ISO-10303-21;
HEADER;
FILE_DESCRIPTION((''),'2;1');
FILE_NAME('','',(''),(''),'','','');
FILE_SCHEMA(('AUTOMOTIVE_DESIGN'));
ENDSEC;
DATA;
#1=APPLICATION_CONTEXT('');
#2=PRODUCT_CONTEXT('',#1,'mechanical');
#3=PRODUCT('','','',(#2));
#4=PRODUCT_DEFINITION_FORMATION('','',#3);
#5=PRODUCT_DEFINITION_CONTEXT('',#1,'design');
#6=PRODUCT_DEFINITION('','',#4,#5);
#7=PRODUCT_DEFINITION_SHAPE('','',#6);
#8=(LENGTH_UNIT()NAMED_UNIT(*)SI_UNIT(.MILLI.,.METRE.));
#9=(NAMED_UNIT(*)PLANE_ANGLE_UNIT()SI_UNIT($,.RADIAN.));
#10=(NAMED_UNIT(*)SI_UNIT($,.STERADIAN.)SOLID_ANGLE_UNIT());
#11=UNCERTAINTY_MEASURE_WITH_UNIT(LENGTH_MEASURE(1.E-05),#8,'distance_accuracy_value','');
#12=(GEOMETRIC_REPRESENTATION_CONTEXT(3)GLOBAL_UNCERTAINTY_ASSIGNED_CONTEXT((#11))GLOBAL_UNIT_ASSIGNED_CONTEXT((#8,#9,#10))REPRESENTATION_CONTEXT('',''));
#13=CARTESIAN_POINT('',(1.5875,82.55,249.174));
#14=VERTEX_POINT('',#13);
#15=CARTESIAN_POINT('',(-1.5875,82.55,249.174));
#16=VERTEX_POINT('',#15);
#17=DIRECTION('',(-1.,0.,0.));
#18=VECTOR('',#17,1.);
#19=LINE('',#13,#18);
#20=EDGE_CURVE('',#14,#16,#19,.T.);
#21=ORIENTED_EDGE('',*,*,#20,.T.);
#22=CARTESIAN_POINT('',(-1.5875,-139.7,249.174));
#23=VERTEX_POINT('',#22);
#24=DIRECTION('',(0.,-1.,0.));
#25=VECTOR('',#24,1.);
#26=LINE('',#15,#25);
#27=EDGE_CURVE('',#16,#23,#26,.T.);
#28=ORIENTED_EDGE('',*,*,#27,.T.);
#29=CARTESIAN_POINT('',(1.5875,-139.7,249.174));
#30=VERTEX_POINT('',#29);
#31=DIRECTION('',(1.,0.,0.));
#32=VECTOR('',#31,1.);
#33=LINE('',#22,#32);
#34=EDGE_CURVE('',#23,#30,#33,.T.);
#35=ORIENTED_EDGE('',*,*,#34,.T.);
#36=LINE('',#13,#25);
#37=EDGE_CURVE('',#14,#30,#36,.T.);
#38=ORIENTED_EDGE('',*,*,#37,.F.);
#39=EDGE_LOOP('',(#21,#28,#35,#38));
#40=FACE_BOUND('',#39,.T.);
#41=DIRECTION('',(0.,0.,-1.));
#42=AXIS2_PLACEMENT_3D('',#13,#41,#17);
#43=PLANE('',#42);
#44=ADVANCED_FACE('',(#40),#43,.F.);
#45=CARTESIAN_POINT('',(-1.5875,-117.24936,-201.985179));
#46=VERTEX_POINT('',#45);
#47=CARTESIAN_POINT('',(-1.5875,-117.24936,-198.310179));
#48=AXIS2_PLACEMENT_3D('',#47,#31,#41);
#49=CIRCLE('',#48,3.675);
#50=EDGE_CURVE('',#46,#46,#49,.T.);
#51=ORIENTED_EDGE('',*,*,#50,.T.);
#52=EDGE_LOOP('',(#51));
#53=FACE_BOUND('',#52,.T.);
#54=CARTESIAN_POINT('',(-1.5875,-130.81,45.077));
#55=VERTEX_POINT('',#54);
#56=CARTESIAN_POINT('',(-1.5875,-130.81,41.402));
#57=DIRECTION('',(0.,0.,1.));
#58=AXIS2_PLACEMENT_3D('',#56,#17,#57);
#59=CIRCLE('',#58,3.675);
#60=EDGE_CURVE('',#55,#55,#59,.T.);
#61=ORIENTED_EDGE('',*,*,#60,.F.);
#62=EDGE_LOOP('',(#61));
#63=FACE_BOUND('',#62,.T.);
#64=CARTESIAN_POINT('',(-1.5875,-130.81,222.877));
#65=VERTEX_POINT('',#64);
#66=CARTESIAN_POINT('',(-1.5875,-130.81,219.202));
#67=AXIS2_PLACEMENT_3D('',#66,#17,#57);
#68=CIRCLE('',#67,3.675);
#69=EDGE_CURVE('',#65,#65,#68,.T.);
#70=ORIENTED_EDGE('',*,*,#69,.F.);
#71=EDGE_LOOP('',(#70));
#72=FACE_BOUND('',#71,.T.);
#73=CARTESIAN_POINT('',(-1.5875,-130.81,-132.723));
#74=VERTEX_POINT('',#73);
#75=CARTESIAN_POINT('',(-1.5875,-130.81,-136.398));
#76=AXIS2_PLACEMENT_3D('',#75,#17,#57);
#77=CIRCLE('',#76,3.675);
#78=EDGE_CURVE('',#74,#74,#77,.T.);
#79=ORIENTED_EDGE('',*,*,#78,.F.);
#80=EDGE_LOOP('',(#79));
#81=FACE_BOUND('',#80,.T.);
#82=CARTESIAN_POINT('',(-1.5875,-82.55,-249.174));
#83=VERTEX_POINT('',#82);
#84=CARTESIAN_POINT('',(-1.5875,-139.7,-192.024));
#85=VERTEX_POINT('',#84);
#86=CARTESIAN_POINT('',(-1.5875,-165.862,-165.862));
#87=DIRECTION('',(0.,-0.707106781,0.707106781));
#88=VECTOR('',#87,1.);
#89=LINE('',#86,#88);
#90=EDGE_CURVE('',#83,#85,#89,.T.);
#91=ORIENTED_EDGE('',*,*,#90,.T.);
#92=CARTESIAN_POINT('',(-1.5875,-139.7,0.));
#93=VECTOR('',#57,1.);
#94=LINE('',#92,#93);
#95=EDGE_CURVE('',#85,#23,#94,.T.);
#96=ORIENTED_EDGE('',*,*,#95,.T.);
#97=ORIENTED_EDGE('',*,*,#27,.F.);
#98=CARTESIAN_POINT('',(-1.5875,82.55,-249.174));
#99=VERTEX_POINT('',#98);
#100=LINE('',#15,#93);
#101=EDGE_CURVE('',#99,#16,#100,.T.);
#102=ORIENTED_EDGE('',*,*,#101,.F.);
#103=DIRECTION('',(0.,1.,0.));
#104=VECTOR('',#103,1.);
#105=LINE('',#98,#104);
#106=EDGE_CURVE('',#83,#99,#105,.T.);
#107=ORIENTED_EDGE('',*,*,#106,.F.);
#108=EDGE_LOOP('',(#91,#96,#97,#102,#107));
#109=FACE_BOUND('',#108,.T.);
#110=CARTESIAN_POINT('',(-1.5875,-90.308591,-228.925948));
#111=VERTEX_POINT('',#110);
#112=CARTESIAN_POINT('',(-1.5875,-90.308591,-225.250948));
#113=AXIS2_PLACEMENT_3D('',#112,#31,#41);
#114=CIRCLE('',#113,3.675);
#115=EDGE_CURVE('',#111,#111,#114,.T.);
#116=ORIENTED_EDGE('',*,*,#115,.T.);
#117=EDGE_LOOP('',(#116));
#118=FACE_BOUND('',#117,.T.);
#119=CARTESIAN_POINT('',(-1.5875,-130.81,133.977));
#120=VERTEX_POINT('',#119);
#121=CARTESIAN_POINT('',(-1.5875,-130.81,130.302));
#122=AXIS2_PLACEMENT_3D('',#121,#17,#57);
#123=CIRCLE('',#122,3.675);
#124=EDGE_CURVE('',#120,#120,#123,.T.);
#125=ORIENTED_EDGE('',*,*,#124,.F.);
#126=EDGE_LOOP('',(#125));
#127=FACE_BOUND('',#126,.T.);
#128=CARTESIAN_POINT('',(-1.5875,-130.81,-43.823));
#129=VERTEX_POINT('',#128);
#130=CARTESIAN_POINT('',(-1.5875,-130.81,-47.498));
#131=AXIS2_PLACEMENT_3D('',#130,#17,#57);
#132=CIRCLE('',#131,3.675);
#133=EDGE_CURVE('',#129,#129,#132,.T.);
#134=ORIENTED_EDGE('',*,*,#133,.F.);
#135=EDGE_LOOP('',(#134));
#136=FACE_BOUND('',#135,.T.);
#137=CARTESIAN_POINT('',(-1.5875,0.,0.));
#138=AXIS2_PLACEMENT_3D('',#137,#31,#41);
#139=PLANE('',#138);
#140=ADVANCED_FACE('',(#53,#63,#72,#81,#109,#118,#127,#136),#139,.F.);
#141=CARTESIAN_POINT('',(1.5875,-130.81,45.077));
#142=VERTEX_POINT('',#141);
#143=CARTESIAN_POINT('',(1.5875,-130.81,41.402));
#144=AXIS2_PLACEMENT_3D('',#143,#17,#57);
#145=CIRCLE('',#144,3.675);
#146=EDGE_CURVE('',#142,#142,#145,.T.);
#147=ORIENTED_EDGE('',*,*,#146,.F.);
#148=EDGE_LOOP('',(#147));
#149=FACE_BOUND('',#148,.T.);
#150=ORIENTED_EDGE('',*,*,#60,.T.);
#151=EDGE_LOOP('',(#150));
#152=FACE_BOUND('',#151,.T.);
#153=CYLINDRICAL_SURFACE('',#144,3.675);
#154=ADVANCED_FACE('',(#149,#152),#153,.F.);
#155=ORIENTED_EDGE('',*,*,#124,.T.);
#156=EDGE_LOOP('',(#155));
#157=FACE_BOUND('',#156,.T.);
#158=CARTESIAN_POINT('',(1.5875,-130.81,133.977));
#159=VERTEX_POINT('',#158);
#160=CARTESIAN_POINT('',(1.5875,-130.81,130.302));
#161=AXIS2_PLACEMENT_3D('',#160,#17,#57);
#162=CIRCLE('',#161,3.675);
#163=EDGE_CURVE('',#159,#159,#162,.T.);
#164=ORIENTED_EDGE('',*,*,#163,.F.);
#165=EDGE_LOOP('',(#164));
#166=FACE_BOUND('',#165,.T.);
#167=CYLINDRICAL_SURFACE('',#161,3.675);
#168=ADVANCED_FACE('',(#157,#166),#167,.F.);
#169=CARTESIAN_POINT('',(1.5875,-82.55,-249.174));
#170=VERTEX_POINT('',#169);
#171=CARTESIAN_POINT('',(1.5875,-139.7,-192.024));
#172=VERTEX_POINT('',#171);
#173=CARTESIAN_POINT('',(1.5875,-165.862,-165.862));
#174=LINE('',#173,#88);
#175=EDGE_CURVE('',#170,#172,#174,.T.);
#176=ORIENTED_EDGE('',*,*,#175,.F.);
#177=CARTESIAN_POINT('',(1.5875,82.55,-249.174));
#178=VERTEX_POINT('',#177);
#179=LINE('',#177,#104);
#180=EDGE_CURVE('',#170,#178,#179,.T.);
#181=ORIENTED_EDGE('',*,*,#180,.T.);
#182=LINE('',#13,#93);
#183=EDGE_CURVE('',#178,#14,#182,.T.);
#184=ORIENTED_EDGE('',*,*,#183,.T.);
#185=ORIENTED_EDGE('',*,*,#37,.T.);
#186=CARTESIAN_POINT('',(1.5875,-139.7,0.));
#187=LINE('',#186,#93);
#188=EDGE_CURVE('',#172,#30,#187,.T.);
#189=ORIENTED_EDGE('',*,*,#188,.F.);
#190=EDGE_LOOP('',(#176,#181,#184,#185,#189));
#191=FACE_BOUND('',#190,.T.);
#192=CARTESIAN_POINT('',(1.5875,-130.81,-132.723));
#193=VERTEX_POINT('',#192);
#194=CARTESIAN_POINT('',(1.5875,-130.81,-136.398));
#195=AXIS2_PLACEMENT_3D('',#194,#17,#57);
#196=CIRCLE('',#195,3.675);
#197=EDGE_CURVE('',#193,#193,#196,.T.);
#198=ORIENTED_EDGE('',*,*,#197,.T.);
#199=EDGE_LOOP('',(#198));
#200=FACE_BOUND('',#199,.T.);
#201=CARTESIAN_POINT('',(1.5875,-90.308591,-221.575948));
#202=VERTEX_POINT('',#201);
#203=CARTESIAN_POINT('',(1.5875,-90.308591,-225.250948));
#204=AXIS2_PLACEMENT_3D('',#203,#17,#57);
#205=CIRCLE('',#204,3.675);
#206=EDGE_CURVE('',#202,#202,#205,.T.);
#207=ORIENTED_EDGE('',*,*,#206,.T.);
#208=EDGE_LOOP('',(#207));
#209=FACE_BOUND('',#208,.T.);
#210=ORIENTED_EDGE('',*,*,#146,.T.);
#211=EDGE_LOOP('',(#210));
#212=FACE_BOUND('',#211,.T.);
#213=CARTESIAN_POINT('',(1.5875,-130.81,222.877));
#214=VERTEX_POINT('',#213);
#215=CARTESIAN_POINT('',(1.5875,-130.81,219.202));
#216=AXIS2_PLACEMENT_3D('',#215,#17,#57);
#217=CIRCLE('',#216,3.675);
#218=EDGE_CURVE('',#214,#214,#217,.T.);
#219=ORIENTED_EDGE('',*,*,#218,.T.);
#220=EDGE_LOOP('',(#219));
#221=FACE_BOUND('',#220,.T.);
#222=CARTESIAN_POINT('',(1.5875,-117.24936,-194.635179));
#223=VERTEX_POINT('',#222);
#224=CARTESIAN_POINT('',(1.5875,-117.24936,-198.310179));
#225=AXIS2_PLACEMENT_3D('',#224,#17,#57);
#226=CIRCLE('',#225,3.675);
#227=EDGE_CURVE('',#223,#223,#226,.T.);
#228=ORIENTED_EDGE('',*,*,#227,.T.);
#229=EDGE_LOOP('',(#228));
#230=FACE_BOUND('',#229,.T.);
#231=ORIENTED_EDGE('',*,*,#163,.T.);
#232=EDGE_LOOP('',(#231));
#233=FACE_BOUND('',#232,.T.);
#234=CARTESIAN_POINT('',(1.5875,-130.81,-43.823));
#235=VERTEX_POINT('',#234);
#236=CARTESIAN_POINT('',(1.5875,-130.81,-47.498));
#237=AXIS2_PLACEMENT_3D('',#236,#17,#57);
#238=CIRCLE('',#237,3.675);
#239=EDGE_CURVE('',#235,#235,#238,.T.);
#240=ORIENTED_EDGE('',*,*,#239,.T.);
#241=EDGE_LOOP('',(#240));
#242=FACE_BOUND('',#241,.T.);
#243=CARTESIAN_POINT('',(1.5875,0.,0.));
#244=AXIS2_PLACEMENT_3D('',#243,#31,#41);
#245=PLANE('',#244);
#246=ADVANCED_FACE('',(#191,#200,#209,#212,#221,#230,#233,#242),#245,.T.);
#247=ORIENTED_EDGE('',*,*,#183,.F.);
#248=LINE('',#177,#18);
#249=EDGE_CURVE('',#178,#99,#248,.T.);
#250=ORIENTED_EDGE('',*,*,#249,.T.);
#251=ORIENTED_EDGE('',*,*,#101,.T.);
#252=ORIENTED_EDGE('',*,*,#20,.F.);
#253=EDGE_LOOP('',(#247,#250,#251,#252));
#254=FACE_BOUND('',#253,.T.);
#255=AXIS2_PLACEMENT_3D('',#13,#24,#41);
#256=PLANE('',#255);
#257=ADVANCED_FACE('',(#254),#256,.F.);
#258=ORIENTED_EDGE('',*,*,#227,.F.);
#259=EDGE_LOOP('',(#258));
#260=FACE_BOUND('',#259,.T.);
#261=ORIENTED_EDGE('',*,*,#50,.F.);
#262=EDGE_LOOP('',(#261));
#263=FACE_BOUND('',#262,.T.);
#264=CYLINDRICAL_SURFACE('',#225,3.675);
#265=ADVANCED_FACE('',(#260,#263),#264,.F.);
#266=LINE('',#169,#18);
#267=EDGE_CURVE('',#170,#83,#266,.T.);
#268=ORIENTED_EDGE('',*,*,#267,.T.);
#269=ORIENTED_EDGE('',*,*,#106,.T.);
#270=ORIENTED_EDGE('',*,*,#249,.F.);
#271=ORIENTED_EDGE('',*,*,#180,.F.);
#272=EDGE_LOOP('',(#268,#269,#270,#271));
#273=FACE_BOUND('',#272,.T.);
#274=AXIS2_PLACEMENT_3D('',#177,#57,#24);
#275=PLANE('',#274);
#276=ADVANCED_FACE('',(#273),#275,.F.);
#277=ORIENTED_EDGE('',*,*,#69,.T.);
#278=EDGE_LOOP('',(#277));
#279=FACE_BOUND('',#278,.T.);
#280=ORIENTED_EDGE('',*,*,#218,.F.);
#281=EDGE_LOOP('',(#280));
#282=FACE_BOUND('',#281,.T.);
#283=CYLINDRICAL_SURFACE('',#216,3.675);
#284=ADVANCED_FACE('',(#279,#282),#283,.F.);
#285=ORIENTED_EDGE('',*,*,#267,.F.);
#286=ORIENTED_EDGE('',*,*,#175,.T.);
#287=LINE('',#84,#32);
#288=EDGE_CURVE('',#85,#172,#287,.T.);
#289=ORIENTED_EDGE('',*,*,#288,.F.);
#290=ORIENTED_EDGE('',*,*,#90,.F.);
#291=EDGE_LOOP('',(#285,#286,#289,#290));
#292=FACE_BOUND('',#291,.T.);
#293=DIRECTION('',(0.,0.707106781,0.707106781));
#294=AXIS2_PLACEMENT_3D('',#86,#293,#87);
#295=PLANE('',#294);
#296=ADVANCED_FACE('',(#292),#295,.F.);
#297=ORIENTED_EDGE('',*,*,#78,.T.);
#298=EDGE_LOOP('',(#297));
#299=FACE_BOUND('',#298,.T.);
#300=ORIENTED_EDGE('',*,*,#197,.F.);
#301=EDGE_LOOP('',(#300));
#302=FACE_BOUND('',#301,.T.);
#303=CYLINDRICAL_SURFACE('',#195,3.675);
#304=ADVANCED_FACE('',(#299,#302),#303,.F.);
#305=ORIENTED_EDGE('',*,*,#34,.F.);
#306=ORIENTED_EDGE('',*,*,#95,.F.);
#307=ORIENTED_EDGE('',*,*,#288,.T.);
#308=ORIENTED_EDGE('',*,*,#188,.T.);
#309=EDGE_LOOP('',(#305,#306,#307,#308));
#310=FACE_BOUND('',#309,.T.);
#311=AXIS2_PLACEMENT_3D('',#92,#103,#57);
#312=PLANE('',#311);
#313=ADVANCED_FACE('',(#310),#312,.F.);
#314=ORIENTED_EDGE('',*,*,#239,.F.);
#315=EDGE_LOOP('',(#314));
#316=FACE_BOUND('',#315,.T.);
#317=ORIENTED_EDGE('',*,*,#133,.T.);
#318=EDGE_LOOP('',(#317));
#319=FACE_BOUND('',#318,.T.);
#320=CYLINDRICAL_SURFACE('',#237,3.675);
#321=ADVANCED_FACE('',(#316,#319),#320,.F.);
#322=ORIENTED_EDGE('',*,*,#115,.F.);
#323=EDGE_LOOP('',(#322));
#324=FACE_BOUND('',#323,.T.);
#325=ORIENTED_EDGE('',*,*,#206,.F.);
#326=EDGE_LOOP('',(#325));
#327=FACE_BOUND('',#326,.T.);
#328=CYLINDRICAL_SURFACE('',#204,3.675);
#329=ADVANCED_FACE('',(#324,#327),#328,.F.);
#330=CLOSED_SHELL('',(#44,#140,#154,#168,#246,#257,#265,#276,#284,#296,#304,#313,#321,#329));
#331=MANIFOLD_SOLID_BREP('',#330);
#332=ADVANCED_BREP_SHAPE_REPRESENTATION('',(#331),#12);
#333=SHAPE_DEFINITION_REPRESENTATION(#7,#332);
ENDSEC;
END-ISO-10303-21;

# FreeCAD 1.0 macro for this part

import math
import FreeCAD as App
import Part
import Sketcher
Q = App.Units.Quantity

doc = App.newDocument("Part")
params = doc.addObject("Spreadsheet::Sheet", "Params")
for row, (alias, value) in enumerate([
    ("sketch1_width", "6.5 in"),
    ("sketch1_height", "19.62 in"),
    ("pad1_length", "0.125 in"),
    ("sketch2_width", "2.25 in"),
    ("sketch2_height", "19.62 in"),
    ("pad2_length", "0.125 in"),
    ("linearpattern_pitch", "3.5 in"),
    ("pocket2_length", "573.362767 mm"),
    ("linearpattern2_pitch", "1.5 in"),
], start=1):
    params.set(f"A{row}", alias)
    params.set(f"B{row}", "=" + value)
    params.setAlias(f"B{row}", alias)

body = doc.addObject("PartDesign::Body", "Body")

sketch1 = body.newObject("Sketcher::SketchObject", "Sketch")
sketch1.AttachmentSupport = (doc.getObject("YZ_Plane"), [""])
sketch1.MapMode = "FlatFace"
sketch1.addGeometry(Part.LineSegment(App.Vector(83, 249, 0), App.Vector(-83, 249, 0)), False)
sketch1.addGeometry(Part.LineSegment(App.Vector(-83, 249, 0), App.Vector(-83, -249, 0)), False)
sketch1.addGeometry(Part.LineSegment(App.Vector(-83, -249, 0), App.Vector(83, -249, 0)), False)
sketch1.addGeometry(Part.LineSegment(App.Vector(83, -249, 0), App.Vector(83, 249, 0)), False)
sketch1.addConstraint(Sketcher.Constraint("Coincident", 0, 2, 1, 1))
sketch1.addConstraint(Sketcher.Constraint("Coincident", 1, 2, 2, 1))
sketch1.addConstraint(Sketcher.Constraint("Coincident", 2, 2, 3, 1))
sketch1.addConstraint(Sketcher.Constraint("Coincident", 3, 2, 0, 1))
sketch1.addConstraint(Sketcher.Constraint("Horizontal", 0))
sketch1.addConstraint(Sketcher.Constraint("Vertical", 1))
sketch1.addConstraint(Sketcher.Constraint("Horizontal", 2))
sketch1.addConstraint(Sketcher.Constraint("Vertical", 3))
sketch1.addConstraint(Sketcher.Constraint("Symmetric", 0, 2, 2, 2, -1, 1))
sketch1.addConstraint(Sketcher.Constraint("DistanceX", 0, 2, 0, 1, Q("6.5 in")))
sketch1.addConstraint(Sketcher.Constraint("DistanceY", 1, 2, 1, 1, Q("19.62 in")))
sketch1.setExpression("Constraints[9]", "Params.sketch1_width")
sketch1.setExpression("Constraints[10]", "Params.sketch1_height")
pad1 = body.newObject("PartDesign::Pad", "Pad")
pad1.Profile = sketch1
pad1.setExpression("Length", "Params.pad1_length")
pad1.Midplane = True

sketch2 = body.newObject("Sketcher::SketchObject", "Sketch001")
sketch2.AttachmentSupport = (doc.getObject("YZ_Plane"), [""])
sketch2.MapMode = "FlatFace"
sketch2.AttachmentOffset = App.Placement(App.Vector(0, 0, 0.0625 * 25.4), App.Rotation())
sketch2.addGeometry(Part.LineSegment(App.Vector(-140, -192, 0), App.Vector(-83, -249, 0)), False)
sketch2.addGeometry(Part.LineSegment(App.Vector(-83, -249, 0), App.Vector(-83, 249, 0)), False)
sketch2.addGeometry(Part.LineSegment(App.Vector(-83, 249, 0), App.Vector(-140, 249, 0)), False)
sketch2.addGeometry(Part.LineSegment(App.Vector(-140, 249, 0), App.Vector(-140, -192, 0)), False)
sketch2.addConstraint(Sketcher.Constraint("Coincident", 0, 2, 1, 1))
sketch2.addConstraint(Sketcher.Constraint("Coincident", 1, 2, 2, 1))
sketch2.addConstraint(Sketcher.Constraint("Coincident", 2, 2, 3, 1))
sketch2.addConstraint(Sketcher.Constraint("Coincident", 3, 2, 0, 1))
sketch2.addConstraint(Sketcher.Constraint("Vertical", 1))
sketch2.addConstraint(Sketcher.Constraint("Horizontal", 2))
sketch2.addConstraint(Sketcher.Constraint("Vertical", 3))
sketch2.addConstraint(Sketcher.Constraint("Angle", 0, Q("-45 deg")))
sketch2.addConstraint(Sketcher.Constraint("DistanceX", 2, 2, 2, 1, Q("2.25 in")))
sketch2.addConstraint(Sketcher.Constraint("DistanceY", 1, 1, 1, 2, Q("19.62 in")))
sketch2.addConstraint(Sketcher.Constraint("DistanceX", 2, 2, -1, 1, Q("5.5 in")))
sketch2.addConstraint(Sketcher.Constraint("DistanceY", 0, 2, -1, 1, Q("9.81 in")))
sketch2.setExpression("Constraints[8]", "Params.sketch2_width")
sketch2.setExpression("Constraints[9]", "Params.sketch2_height")
pad2 = body.newObject("PartDesign::Pad", "Pad001")
pad2.Profile = sketch2
pad2.setExpression("Length", "Params.pad2_length")
pad2.Reversed = True

sketch3 = body.newObject("Sketcher::SketchObject", "Sketch002")
sketch3.AttachmentSupport = (doc.getObject("YZ_Plane"), [""])
sketch3.MapMode = "FlatFace"
sketch3.AttachmentOffset = App.Placement(App.Vector(0, 0, -0.0625 * 25.4), App.Rotation())
sketch3.addGeometry(Part.ArcOfCircle(Part.Circle(App.Vector(-130.8, 219.2, 0), App.Vector(0, 0, 1), 3.7), math.radians(180), math.radians(450)), False)
sketch3.addGeometry(Part.ArcOfCircle(Part.Circle(App.Vector(-130.8, 219.2, 0), App.Vector(0, 0, 1), 3.7), math.radians(90), math.radians(180)), False)
sketch3.addConstraint(Sketcher.Constraint("Tangent", 0, 1, 1, 2))
sketch3.addConstraint(Sketcher.Constraint("Coincident", 1, 1, 0, 2))
sketch3.addConstraint(Sketcher.Constraint("Horizontal", 1, 3, 0, 1))
sketch3.addConstraint(Sketcher.Constraint("Vertical", 0, 3, 1, 1))
sketch3.addConstraint(Sketcher.Constraint("DistanceX", 0, 3, -1, 1, Q("5.15 in")))
sketch3.addConstraint(Sketcher.Constraint("DistanceY", -1, 1, 0, 3, Q("8.63 in")))
sketch3.addConstraint(Sketcher.Constraint("Radius", 0, Q("3.675 mm")))
pocket1 = body.newObject("PartDesign::Pocket", "Pocket")
pocket1.Profile = sketch3
pocket1.Type = "ThroughAll"
pocket1.Reversed = True
doc.recompute()

linearpattern = body.newObject("PartDesign::LinearPattern", "LinearPattern")
linearpattern.Originals = [pocket1]
linearpattern.Direction = (doc.getObject("Z_Axis"), [""])
linearpattern.Mode = "offset"
linearpattern.setExpression("Offset", "Params.linearpattern_pitch")
linearpattern.Occurrences = 5
linearpattern.Reversed = True
body.Tip = linearpattern

sketch4 = body.newObject("Sketcher::SketchObject", "Sketch003")
sketch4.AttachmentSupport = (doc.getObject("YZ_Plane"), [""])
sketch4.MapMode = "FlatFace"
sketch4.AttachmentOffset = App.Placement(App.Vector(0, 0, -0.0625 * 25.4), App.Rotation())
sketch4.addGeometry(Part.ArcOfCircle(Part.Circle(App.Vector(-117.2, -198.3, 0), App.Vector(0, 0, 1), 3.7), math.radians(-135), math.radians(90)), False)
sketch4.addGeometry(Part.ArcOfCircle(Part.Circle(App.Vector(-117.2, -198.3, 0), App.Vector(0, 0, 1), 3.7), math.radians(135), math.radians(225)), False)
sketch4.addGeometry(Part.ArcOfCircle(Part.Circle(App.Vector(-117.2, -198.3, 0), App.Vector(0, 0, 1), 3.7), math.radians(90), math.radians(135)), False)
sketch4.addConstraint(Sketcher.Constraint("Tangent", 0, 1, 1, 2))
sketch4.addConstraint(Sketcher.Constraint("Tangent", 1, 1, 2, 2))
sketch4.addConstraint(Sketcher.Constraint("Tangent", 2, 1, 0, 2))
sketch4.addConstraint(Sketcher.Constraint("Vertical", 0, 1, 1, 1))
sketch4.addConstraint(Sketcher.Constraint("Vertical", 1, 3, 2, 1))
sketch4.addConstraint(Sketcher.Constraint("Radius", 0, Q("3.675 mm")))
sketch4.addConstraint(Sketcher.Constraint("DistanceX", 0, 3, -1, 1, Q("117.24936 mm")))
sketch4.addConstraint(Sketcher.Constraint("DistanceY", 0, 3, -1, 1, Q("198.310179 mm")))
sketch4.addConstraint(Sketcher.Constraint("DistanceY", 1, 1, -1, 1, Q("195.711562 mm")))
pocket2 = body.newObject("PartDesign::Pocket", "Pocket001")
pocket2.Profile = sketch4
pocket2.setExpression("Length", "Params.pocket2_length")
pocket2.Midplane = True
doc.recompute()

datumline = body.newObject("PartDesign::Line", "DatumLine")
datumline.Placement = App.Placement(App.Vector(0, 0, 0), App.Rotation(App.Vector(0, 0, 1), App.Vector(0, 0.707106781, -0.707106781)))
linearpattern2 = body.newObject("PartDesign::LinearPattern", "LinearPattern001")
linearpattern2.Originals = [pocket2]
linearpattern2.Direction = (datumline, [""])
linearpattern2.Mode = "offset"
linearpattern2.setExpression("Offset", "Params.linearpattern2_pitch")
linearpattern2.Occurrences = 2
body.Tip = linearpattern2

doc.recompute()
